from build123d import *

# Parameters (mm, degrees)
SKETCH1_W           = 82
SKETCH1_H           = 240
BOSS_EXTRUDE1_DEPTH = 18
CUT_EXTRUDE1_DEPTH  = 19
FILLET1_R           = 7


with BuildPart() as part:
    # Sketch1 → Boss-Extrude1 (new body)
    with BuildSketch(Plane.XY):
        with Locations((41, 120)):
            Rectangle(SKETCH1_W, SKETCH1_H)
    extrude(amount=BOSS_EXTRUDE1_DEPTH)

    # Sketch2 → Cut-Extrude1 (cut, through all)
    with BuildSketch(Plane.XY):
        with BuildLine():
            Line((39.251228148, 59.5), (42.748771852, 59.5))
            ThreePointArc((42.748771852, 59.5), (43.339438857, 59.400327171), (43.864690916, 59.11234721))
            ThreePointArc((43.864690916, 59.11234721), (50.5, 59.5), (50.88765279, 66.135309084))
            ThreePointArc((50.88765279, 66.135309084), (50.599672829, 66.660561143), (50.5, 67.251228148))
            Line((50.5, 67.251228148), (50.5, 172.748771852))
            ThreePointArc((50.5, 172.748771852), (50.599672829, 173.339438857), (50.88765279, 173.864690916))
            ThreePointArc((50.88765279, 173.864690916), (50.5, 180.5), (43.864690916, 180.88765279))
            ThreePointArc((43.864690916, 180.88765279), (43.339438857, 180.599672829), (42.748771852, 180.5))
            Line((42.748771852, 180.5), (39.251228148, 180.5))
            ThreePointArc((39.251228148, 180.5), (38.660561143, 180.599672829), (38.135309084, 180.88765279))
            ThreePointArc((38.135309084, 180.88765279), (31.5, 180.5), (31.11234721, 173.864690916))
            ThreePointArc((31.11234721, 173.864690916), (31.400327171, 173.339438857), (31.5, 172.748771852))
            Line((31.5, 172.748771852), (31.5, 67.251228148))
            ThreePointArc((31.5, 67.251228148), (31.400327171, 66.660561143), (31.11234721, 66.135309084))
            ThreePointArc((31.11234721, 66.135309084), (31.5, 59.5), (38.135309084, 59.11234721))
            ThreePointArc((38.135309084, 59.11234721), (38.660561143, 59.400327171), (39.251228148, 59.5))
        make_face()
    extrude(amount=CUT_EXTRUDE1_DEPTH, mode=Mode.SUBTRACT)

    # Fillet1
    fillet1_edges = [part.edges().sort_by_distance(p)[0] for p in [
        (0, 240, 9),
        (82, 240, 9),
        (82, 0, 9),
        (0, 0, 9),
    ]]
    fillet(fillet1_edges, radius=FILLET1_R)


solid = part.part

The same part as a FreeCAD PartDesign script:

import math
import FreeCAD as App
import Part
import Sketcher

V = App.Vector


def edges_at(feature, points):
    """Names of the edges that pass closest to the given points."""
    edges = feature.Shape.Edges
    near = lambda p: min(range(len(edges)), key=lambda i: edges[i].distToShape(Part.Vertex(*p))[0])
    return sorted({f"Edge{near(p) + 1}" for p in points})

doc = App.newDocument("Part")
params = doc.addObject("Spreadsheet::Sheet", "Params")
for row, (alias, value) in enumerate([
    ("sketch1_width", "82 mm"),
    ("sketch1_height", "240 mm"),
    ("pad1_length", "18 mm"),
    ("sketch2_radius", "5 mm"),
    ("sketch2_radius2", "1.8 mm"),
    ("fillet_radius", "7 mm"),
], start=1):
    params.set(f"A{row}", alias)
    params.set(f"B{row}", "=" + value)
    params.setAlias(f"B{row}", alias)

body = doc.addObject("PartDesign::Body", "Body")

# Sketch on XY plane
sketch1 = body.newObject("Sketcher::SketchObject", "Sketch")
sketch1.AttachmentSupport = (doc.getObject("XY_Plane"), [""])
sketch1.MapMode = "FlatFace"
sketch1.addGeometry([
    Part.LineSegment(V(0, 240, 0), V(0, 0, 0)),
    Part.LineSegment(V(0, 0, 0), V(82, 0, 0)),
    Part.LineSegment(V(82, 0, 0), V(82, 240, 0)),
    Part.LineSegment(V(82, 240, 0), V(0, 240, 0)),
], False)
sketch1.addConstraint([
    Sketcher.Constraint("Coincident", 0, 2, 1, 1),
    Sketcher.Constraint("Coincident", 1, 2, 2, 1),
    Sketcher.Constraint("Coincident", 2, 2, 3, 1),
    Sketcher.Constraint("Coincident", 3, 2, 0, 1),
    Sketcher.Constraint("Vertical", 0),
    Sketcher.Constraint("Horizontal", 1),
    Sketcher.Constraint("Vertical", 2),
    Sketcher.Constraint("Horizontal", 3),
    Sketcher.Constraint("Coincident", 0, 2, -1, 1),
    Sketcher.Constraint("DistanceX", 1, 1, 1, 2, 82.0),
    Sketcher.Constraint("DistanceY", 0, 2, 0, 1, 240.0),
])
sketch1.setExpression("Constraints[9]", "Params.sketch1_width")
sketch1.setExpression("Constraints[10]", "Params.sketch1_height")
pad1 = body.newObject("PartDesign::Pad", "Pad")
pad1.Profile = sketch1
pad1.setExpression("Length", "Params.pad1_length")

# Sketch on XY plane
sketch2 = body.newObject("Sketcher::SketchObject", "Sketch001")
sketch2.AttachmentSupport = (doc.getObject("XY_Plane"), [""])
sketch2.MapMode = "FlatFace"
sketch2.addGeometry([
    Part.LineSegment(V(39.3, 59.5, 0), V(42.7, 59.5, 0)),  # 0
    Part.ArcOfCircle(Part.Circle(V(42.7, 57.7, 0), V(0, 0, 1), 1.8), math.radians(52), math.radians(90)),  # 1
    Part.ArcOfCircle(Part.Circle(V(47, 63, 0), V(0, 0, 1), 5), math.radians(-128), math.radians(38)),  # 2
    Part.ArcOfCircle(Part.Circle(V(52.3, 67.3, 0), V(0, 0, 1), 1.8), math.radians(-180), math.radians(-142)),  # 3
    Part.LineSegment(V(50.5, 67.3, 0), V(50.5, 172.7, 0)),  # 4
    Part.ArcOfCircle(Part.Circle(V(52.3, 172.7, 0), V(0, 0, 1), 1.8), math.radians(142), math.radians(180)),  # 5
    Part.ArcOfCircle(Part.Circle(V(47, 177, 0), V(0, 0, 1), 5), math.radians(-38), math.radians(128)),  # 6
    Part.ArcOfCircle(Part.Circle(V(42.7, 182.3, 0), V(0, 0, 1), 1.8), math.radians(-90), math.radians(-52)),  # 7
    Part.LineSegment(V(42.7, 180.5, 0), V(39.3, 180.5, 0)),  # 8
    Part.ArcOfCircle(Part.Circle(V(39.3, 182.3, 0), V(0, 0, 1), 1.8), math.radians(-128), math.radians(-90)),  # 9
    Part.ArcOfCircle(Part.Circle(V(35, 177, 0), V(0, 0, 1), 5), math.radians(52), math.radians(218)),  # 10
    Part.ArcOfCircle(Part.Circle(V(29.7, 172.7, 0), V(0, 0, 1), 1.8), math.radians(0), math.radians(38)),  # 11
    Part.LineSegment(V(31.5, 172.7, 0), V(31.5, 67.3, 0)),  # 12
    Part.ArcOfCircle(Part.Circle(V(29.7, 67.3, 0), V(0, 0, 1), 1.8), math.radians(-38), math.radians(0)),  # 13
    Part.ArcOfCircle(Part.Circle(V(35, 63, 0), V(0, 0, 1), 5), math.radians(142), math.radians(308)),  # 14
    Part.ArcOfCircle(Part.Circle(V(39.3, 57.7, 0), V(0, 0, 1), 1.8), math.radians(90), math.radians(128)),  # 15
], False)
sketch2.addConstraint([
    Sketcher.Constraint("Tangent", 0, 2, 1, 2),
    Sketcher.Constraint("Tangent", 1, 1, 2, 1),
    Sketcher.Constraint("Tangent", 2, 2, 3, 2),
    Sketcher.Constraint("Tangent", 3, 1, 4, 1),
    Sketcher.Constraint("Tangent", 4, 2, 5, 2),
    Sketcher.Constraint("Tangent", 5, 1, 6, 1),
    Sketcher.Constraint("Tangent", 6, 2, 7, 2),
    Sketcher.Constraint("Tangent", 7, 1, 8, 1),
    Sketcher.Constraint("Tangent", 8, 2, 9, 2),
    Sketcher.Constraint("Tangent", 9, 1, 10, 1),
    Sketcher.Constraint("Tangent", 10, 2, 11, 2),
    Sketcher.Constraint("Tangent", 11, 1, 12, 1),
    Sketcher.Constraint("Tangent", 12, 2, 13, 2),
    Sketcher.Constraint("Tangent", 13, 1, 14, 1),
    Sketcher.Constraint("Tangent", 14, 2, 15, 2),
    Sketcher.Constraint("Tangent", 15, 1, 0, 1),
    Sketcher.Constraint("Horizontal", 0),
    Sketcher.Constraint("Vertical", 4),
    Sketcher.Constraint("Horizontal", 8),
    Sketcher.Constraint("Vertical", 12),
    Sketcher.Constraint("Equal", 1, 3),
    Sketcher.Constraint("Equal", 3, 5),
    Sketcher.Constraint("Equal", 2, 6),
    Sketcher.Constraint("Equal", 5, 7),
    Sketcher.Constraint("Equal", 7, 9),
    Sketcher.Constraint("Equal", 6, 10),
    Sketcher.Constraint("Equal", 9, 11),
    Sketcher.Constraint("Equal", 11, 13),
    Sketcher.Constraint("Equal", 10, 14),
    Sketcher.Constraint("Equal", 13, 15),
    Sketcher.Constraint("Horizontal", 6, 3, 10, 3),
    Sketcher.Constraint("Horizontal", 5, 3, 11, 3),
    Sketcher.Constraint("Horizontal", 3, 3, 13, 3),
    Sketcher.Constraint("Horizontal", 2, 3, 14, 3),
    Sketcher.Constraint("Vertical", 2, 3, 6, 3),
    Sketcher.Constraint("Vertical", 1, 3, 7, 3),
    Sketcher.Constraint("Radius", 2, 5.0),
    Sketcher.Constraint("Radius", 1, 1.8),
    Sketcher.Constraint("DistanceY", -1, 1, 1, 3, 57.7),
    Sketcher.Constraint("DistanceX", -1, 1, 3, 3, 52.3),
    Sketcher.Constraint("DistanceY", -1, 1, 7, 3, 182.3),
    Sketcher.Constraint("DistanceX", -1, 1, 11, 3, 29.7),
    Sketcher.Constraint("DistanceX", 0, 1, 0, 2, 3.497544),
    Sketcher.Constraint("DistanceY", 4, 1, 4, 2, 105.497544),
])
sketch2.setExpression("Constraints[36]", "Params.sketch2_radius")
sketch2.setExpression("Constraints[37]", "Params.sketch2_radius2")
pocket1 = body.newObject("PartDesign::Pocket", "Pocket")
pocket1.Profile = sketch2
pocket1.Type = "ThroughAll"
pocket1.Reversed = True
doc.recompute()

fillet = body.newObject("PartDesign::Fillet", "Fillet")
fillet.Base = (pocket1, edges_at(pocket1, [
    (0, 240, 9),
    (82, 240, 9),
    (82, 0, 9),
    (0, 0, 9),
]))
fillet.setExpression("Radius", "Params.fillet_radius")

doc.recompute()
